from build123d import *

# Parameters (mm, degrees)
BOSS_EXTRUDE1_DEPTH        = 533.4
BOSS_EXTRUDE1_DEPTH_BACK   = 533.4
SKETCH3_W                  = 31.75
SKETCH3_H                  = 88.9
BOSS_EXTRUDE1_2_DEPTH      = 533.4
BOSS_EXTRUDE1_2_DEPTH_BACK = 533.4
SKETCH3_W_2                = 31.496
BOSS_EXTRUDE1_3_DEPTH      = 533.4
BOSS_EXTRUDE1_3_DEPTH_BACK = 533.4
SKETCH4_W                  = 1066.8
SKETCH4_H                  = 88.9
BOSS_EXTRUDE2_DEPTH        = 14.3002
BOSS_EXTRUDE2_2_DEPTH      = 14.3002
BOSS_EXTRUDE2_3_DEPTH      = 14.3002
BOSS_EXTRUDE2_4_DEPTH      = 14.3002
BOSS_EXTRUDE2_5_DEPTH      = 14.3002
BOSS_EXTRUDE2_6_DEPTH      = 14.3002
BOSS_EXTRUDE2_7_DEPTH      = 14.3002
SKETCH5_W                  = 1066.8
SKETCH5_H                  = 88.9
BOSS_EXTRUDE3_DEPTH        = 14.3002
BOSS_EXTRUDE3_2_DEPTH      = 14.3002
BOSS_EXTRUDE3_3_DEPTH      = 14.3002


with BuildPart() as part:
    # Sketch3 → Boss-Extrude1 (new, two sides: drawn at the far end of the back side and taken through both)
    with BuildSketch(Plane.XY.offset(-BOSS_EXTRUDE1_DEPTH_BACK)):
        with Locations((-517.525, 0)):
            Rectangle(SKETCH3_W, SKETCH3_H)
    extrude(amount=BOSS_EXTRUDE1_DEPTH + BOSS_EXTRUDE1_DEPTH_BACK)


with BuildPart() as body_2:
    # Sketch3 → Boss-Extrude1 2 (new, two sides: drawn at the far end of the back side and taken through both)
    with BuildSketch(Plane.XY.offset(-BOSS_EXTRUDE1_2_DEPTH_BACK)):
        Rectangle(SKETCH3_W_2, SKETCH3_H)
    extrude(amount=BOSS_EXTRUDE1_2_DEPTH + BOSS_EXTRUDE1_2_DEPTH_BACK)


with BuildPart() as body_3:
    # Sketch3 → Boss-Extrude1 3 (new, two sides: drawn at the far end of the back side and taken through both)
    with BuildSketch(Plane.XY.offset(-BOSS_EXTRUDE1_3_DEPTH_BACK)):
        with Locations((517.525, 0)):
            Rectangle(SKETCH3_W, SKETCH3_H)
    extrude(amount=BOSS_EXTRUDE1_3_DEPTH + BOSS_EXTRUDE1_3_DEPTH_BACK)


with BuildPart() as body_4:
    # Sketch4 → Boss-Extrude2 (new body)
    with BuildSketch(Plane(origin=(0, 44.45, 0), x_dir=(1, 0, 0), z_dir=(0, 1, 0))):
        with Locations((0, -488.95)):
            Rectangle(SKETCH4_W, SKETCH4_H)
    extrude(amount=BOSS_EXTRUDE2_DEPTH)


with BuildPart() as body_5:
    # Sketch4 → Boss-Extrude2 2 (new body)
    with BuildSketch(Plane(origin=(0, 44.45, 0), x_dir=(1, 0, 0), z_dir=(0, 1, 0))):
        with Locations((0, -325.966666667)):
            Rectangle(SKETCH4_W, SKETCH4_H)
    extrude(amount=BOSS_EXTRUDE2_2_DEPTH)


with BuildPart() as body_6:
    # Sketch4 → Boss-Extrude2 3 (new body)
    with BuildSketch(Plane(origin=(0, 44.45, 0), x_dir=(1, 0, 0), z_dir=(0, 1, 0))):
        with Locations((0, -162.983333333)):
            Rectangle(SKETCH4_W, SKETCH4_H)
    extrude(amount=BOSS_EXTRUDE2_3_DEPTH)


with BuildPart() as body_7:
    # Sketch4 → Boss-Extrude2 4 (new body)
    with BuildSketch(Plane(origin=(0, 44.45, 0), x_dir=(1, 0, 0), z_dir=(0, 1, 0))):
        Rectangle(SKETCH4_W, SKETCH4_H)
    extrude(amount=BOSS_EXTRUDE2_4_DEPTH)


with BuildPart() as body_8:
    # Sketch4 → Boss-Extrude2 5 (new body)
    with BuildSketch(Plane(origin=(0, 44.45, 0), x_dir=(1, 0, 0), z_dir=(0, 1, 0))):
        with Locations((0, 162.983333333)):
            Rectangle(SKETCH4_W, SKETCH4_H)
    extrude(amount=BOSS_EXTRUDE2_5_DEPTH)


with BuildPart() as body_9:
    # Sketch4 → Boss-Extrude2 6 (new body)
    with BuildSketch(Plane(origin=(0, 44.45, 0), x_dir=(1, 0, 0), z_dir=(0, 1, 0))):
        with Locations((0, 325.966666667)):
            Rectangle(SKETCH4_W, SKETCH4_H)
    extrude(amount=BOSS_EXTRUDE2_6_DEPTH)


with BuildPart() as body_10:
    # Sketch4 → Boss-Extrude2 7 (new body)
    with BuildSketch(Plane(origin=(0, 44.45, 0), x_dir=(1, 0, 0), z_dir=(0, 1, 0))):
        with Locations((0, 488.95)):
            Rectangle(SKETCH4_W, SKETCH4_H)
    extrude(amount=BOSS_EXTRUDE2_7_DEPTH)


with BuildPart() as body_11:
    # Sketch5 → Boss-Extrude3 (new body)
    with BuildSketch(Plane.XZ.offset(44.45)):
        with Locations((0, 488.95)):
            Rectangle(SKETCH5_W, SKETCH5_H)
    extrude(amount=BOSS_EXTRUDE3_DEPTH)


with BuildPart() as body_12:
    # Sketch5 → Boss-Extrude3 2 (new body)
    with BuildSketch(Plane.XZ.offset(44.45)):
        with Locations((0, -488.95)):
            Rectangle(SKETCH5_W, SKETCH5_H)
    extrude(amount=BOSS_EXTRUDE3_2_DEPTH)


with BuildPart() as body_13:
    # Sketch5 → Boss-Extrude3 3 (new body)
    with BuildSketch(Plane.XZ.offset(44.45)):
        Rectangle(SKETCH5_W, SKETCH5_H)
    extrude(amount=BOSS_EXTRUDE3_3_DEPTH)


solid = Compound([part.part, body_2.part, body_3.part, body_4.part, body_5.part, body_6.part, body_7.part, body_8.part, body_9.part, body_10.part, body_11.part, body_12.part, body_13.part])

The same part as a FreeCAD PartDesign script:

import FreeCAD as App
import Part
import Sketcher

V = App.Vector
Q = App.Units.Quantity


def add_polygon(sketch, points):
    """Adds a closed chain of lines whose ends are joined by coincident constraints."""
    first, n = sketch.GeometryCount, len(points)
    for a, b in zip(points, points[1:] + points[:1]):
        sketch.addGeometry(Part.LineSegment(App.Vector(*a, 0), App.Vector(*b, 0)), False)
    for i in range(n):
        sketch.addConstraint(Sketcher.Constraint("Coincident", first + i, 2, first + (i + 1) % n, 1))

doc = App.newDocument("Part")
body = doc.addObject("PartDesign::Body", "Body")

sketch1 = body.newObject("Sketcher::SketchObject", "Sketch")
sketch1.AttachmentSupport = (doc.getObject("XY_Plane"), [""])
sketch1.MapMode = "FlatFace"
add_polygon(sketch1, [(-533, 44), (-533, -44), (-502, -44), (-502, 44)])
sketch1.addConstraint([
    Sketcher.Constraint("Vertical", 0),
    Sketcher.Constraint("Horizontal", 1),
    Sketcher.Constraint("Vertical", 2),
    Sketcher.Constraint("Horizontal", 3),
    Sketcher.Constraint("DistanceY", 0, 2, 0, 1, Q("3.5 in")),
    Sketcher.Constraint("DistanceX", 0, 2, -1, 1, Q("21 in")),
    Sketcher.Constraint("DistanceX", 1, 1, 1, 2, Q("1.25 in")),
    Sketcher.Constraint("DistanceY", 0, 2, -1, 1, Q("1.75 in")),
])
pad1 = body.newObject("PartDesign::Pad", "Pad")
pad1.Profile = sketch1
pad1.Type = "TwoLengths"
pad1.Length = Q("21 in")
pad1.Length2 = Q("21 in")
body2 = doc.addObject("PartDesign::Body", "Body001")

sketch2 = body2.newObject("Sketcher::SketchObject", "Sketch001")
sketch2.AttachmentSupport = (doc.getObject("XY_Plane001"), [""])
sketch2.MapMode = "FlatFace"
add_polygon(sketch2, [(-16, 44), (-16, -44), (16, -44), (16, 44)])
sketch2.addConstraint([
    Sketcher.Constraint("Vertical", 0),
    Sketcher.Constraint("Horizontal", 1),
    Sketcher.Constraint("Vertical", 2),
    Sketcher.Constraint("Horizontal", 3),
    Sketcher.Constraint("Symmetric", 0, 2, 2, 2, -1, 1),
    Sketcher.Constraint("DistanceY", 0, 2, 0, 1, Q("3.5 in")),
    Sketcher.Constraint("DistanceX", 1, 1, 1, 2, Q("1.24 in")),
])
pad2 = body2.newObject("PartDesign::Pad", "Pad001")
pad2.Profile = sketch2
pad2.Type = "TwoLengths"
pad2.Length = Q("21 in")
pad2.Length2 = Q("21 in")
body3 = doc.addObject("PartDesign::Body", "Body002")

sketch3 = body3.newObject("Sketcher::SketchObject", "Sketch002")
sketch3.AttachmentSupport = (doc.getObject("XY_Plane002"), [""])
sketch3.MapMode = "FlatFace"
add_polygon(sketch3, [(502, 44), (502, -44), (533, -44), (533, 44)])
sketch3.addConstraint([
    Sketcher.Constraint("Vertical", 0),
    Sketcher.Constraint("Horizontal", 1),
    Sketcher.Constraint("Vertical", 2),
    Sketcher.Constraint("Horizontal", 3),
    Sketcher.Constraint("DistanceY", 0, 2, 0, 1, Q("3.5 in")),
    Sketcher.Constraint("DistanceX", -1, 1, 1, 2, Q("21 in")),
    Sketcher.Constraint("DistanceX", 1, 1, 1, 2, Q("1.25 in")),
    Sketcher.Constraint("DistanceY", 0, 2, -1, 1, Q("1.75 in")),
])
pad3 = body3.newObject("PartDesign::Pad", "Pad002")
pad3.Profile = sketch3
pad3.Type = "TwoLengths"
pad3.Length = Q("21 in")
pad3.Length2 = Q("21 in")
body4 = doc.addObject("PartDesign::Body", "Body003")

sketch4 = body4.newObject("Sketcher::SketchObject", "Sketch003")
sketch4.AttachmentSupport = (doc.getObject("XZ_Plane003"), [""])
sketch4.MapMode = "FlatFace"
sketch4.AttachmentOffset = App.Placement(V(0, 0, -1.75 * 25.4), App.Rotation())
add_polygon(sketch4, [(-533, 444), (-533, 533), (533, 533), (533, 444)])
sketch4.addConstraint([
    Sketcher.Constraint("Vertical", 0),
    Sketcher.Constraint("Horizontal", 1),
    Sketcher.Constraint("Vertical", 2),
    Sketcher.Constraint("Horizontal", 3),
    Sketcher.Constraint("DistanceX", 1, 1, 1, 2, Q("42 in")),
    Sketcher.Constraint("DistanceY", 0, 1, 0, 2, Q("3.5 in")),
    Sketcher.Constraint("DistanceX", 0, 2, -1, 1, Q("21 in")),
    Sketcher.Constraint("DistanceY", -1, 1, 0, 2, Q("21 in")),
])
pad4 = body4.newObject("PartDesign::Pad", "Pad003")
pad4.Profile = sketch4
pad4.Length = Q("0.563 in")
pad4.Reversed = True
body5 = doc.addObject("PartDesign::Body", "Body004")

sketch5 = body5.newObject("Sketcher::SketchObject", "Sketch004")
sketch5.AttachmentSupport = (doc.getObject("XZ_Plane004"), [""])
sketch5.MapMode = "FlatFace"
sketch5.AttachmentOffset = App.Placement(V(0, 0, -1.75 * 25.4), App.Rotation())
add_polygon(sketch5, [(-533, 282), (-533, 370), (533, 370), (533, 282)])
sketch5.addConstraint([
    Sketcher.Constraint("Vertical", 0),
    Sketcher.Constraint("Horizontal", 1),
    Sketcher.Constraint("Vertical", 2),
    Sketcher.Constraint("Horizontal", 3),
    Sketcher.Constraint("DistanceX", 1, 1, 1, 2, Q("42 in")),
    Sketcher.Constraint("DistanceY", 0, 1, 0, 2, Q("3.5 in")),
    Sketcher.Constraint("DistanceX", 0, 2, -1, 1, Q("21 in")),
    Sketcher.Constraint("DistanceY", -1, 1, 0, 2, 370.416667),
])
pad5 = body5.newObject("PartDesign::Pad", "Pad004")
pad5.Profile = sketch5
pad5.Length = Q("0.563 in")
pad5.Reversed = True
body6 = doc.addObject("PartDesign::Body", "Body005")

sketch6 = body6.newObject("Sketcher::SketchObject", "Sketch005")
sketch6.AttachmentSupport = (doc.getObject("XZ_Plane005"), [""])
sketch6.MapMode = "FlatFace"
sketch6.AttachmentOffset = App.Placement(V(0, 0, -1.75 * 25.4), App.Rotation())
add_polygon(sketch6, [(-533, 119), (-533, 207), (533, 207), (533, 119)])
sketch6.addConstraint([
    Sketcher.Constraint("Vertical", 0),
    Sketcher.Constraint("Horizontal", 1),
    Sketcher.Constraint("Vertical", 2),
    Sketcher.Constraint("Horizontal", 3),
    Sketcher.Constraint("DistanceX", 1, 1, 1, 2, Q("42 in")),
    Sketcher.Constraint("DistanceY", 0, 1, 0, 2, Q("3.5 in")),
    Sketcher.Constraint("DistanceX", 0, 2, -1, 1, Q("21 in")),
    Sketcher.Constraint("DistanceY", -1, 1, 0, 2, 207.433333),
])
pad6 = body6.newObject("PartDesign::Pad", "Pad005")
pad6.Profile = sketch6
pad6.Length = Q("0.563 in")
pad6.Reversed = True
body7 = doc.addObject("PartDesign::Body", "Body006")

sketch7 = body7.newObject("Sketcher::SketchObject", "Sketch006")
sketch7.AttachmentSupport = (doc.getObject("XZ_Plane006"), [""])
sketch7.MapMode = "FlatFace"
sketch7.AttachmentOffset = App.Placement(V(0, 0, -1.75 * 25.4), App.Rotation())
add_polygon(sketch7, [(-533, -44), (-533, 44), (533, 44), (533, -44)])
sketch7.addConstraint([
    Sketcher.Constraint("Vertical", 0),
    Sketcher.Constraint("Horizontal", 1),
    Sketcher.Constraint("Vertical", 2),
    Sketcher.Constraint("Horizontal", 3),
    Sketcher.Constraint("Symmetric", 0, 2, 2, 2, -1, 1),
    Sketcher.Constraint("DistanceX", 1, 1, 1, 2, Q("42 in")),
    Sketcher.Constraint("DistanceY", 0, 1, 0, 2, Q("3.5 in")),
])
pad7 = body7.newObject("PartDesign::Pad", "Pad006")
pad7.Profile = sketch7
pad7.Length = Q("0.563 in")
pad7.Reversed = True
body8 = doc.addObject("PartDesign::Body", "Body007")

sketch8 = body8.newObject("Sketcher::SketchObject", "Sketch007")
sketch8.AttachmentSupport = (doc.getObject("XZ_Plane007"), [""])
sketch8.MapMode = "FlatFace"
sketch8.AttachmentOffset = App.Placement(V(0, 0, -1.75 * 25.4), App.Rotation())
add_polygon(sketch8, [(-533, -207), (-533, -119), (533, -119), (533, -207)])
sketch8.addConstraint([
    Sketcher.Constraint("Vertical", 0),
    Sketcher.Constraint("Horizontal", 1),
    Sketcher.Constraint("Vertical", 2),
    Sketcher.Constraint("Horizontal", 3),
    Sketcher.Constraint("DistanceX", 1, 1, 1, 2, Q("42 in")),
    Sketcher.Constraint("DistanceY", 0, 1, 0, 2, Q("3.5 in")),
    Sketcher.Constraint("DistanceX", 0, 2, -1, 1, Q("21 in")),
    Sketcher.Constraint("DistanceY", 0, 2, -1, 1, 118.533333),
])
pad8 = body8.newObject("PartDesign::Pad", "Pad007")
pad8.Profile = sketch8
pad8.Length = Q("0.563 in")
pad8.Reversed = True
body9 = doc.addObject("PartDesign::Body", "Body008")

sketch9 = body9.newObject("Sketcher::SketchObject", "Sketch008")
sketch9.AttachmentSupport = (doc.getObject("XZ_Plane008"), [""])
sketch9.MapMode = "FlatFace"
sketch9.AttachmentOffset = App.Placement(V(0, 0, -1.75 * 25.4), App.Rotation())
add_polygon(sketch9, [(-533, -370), (-533, -282), (533, -282), (533, -370)])
sketch9.addConstraint([
    Sketcher.Constraint("Vertical", 0),
    Sketcher.Constraint("Horizontal", 1),
    Sketcher.Constraint("Vertical", 2),
    Sketcher.Constraint("Horizontal", 3),
    Sketcher.Constraint("DistanceX", 1, 1, 1, 2, Q("42 in")),
    Sketcher.Constraint("DistanceY", 0, 1, 0, 2, Q("3.5 in")),
    Sketcher.Constraint("DistanceX", 0, 2, -1, 1, Q("21 in")),
    Sketcher.Constraint("DistanceY", 0, 2, -1, 1, 281.516667),
])
pad9 = body9.newObject("PartDesign::Pad", "Pad008")
pad9.Profile = sketch9
pad9.Length = Q("0.563 in")
pad9.Reversed = True
body10 = doc.addObject("PartDesign::Body", "Body009")

sketch10 = body10.newObject("Sketcher::SketchObject", "Sketch009")
sketch10.AttachmentSupport = (doc.getObject("XZ_Plane009"), [""])
sketch10.MapMode = "FlatFace"
sketch10.AttachmentOffset = App.Placement(V(0, 0, -1.75 * 25.4), App.Rotation())
add_polygon(sketch10, [(-533, -533), (-533, -444), (533, -444), (533, -533)])
sketch10.addConstraint([
    Sketcher.Constraint("Vertical", 0),
    Sketcher.Constraint("Horizontal", 1),
    Sketcher.Constraint("Vertical", 2),
    Sketcher.Constraint("Horizontal", 3),
    Sketcher.Constraint("DistanceX", 1, 1, 1, 2, Q("42 in")),
    Sketcher.Constraint("DistanceY", 0, 1, 0, 2, Q("3.5 in")),
    Sketcher.Constraint("DistanceX", 0, 2, -1, 1, Q("21 in")),
    Sketcher.Constraint("DistanceY", 2, 2, -1, 1, Q("21 in")),
])
pad10 = body10.newObject("PartDesign::Pad", "Pad009")
pad10.Profile = sketch10
pad10.Length = Q("0.563 in")
pad10.Reversed = True
body11 = doc.addObject("PartDesign::Body", "Body010")

sketch11 = body11.newObject("Sketcher::SketchObject", "Sketch010")
sketch11.AttachmentSupport = (doc.getObject("XZ_Plane010"), [""])
sketch11.MapMode = "FlatFace"
sketch11.AttachmentOffset = App.Placement(V(0, 0, 1.75 * 25.4), App.Rotation())
add_polygon(sketch11, [(-533, 533), (-533, 444), (533, 444), (533, 533)])
sketch11.addConstraint([
    Sketcher.Constraint("Vertical", 0),
    Sketcher.Constraint("Horizontal", 1),
    Sketcher.Constraint("Vertical", 2),
    Sketcher.Constraint("Horizontal", 3),
    Sketcher.Constraint("DistanceX", 1, 1, 1, 2, Q("42 in")),
    Sketcher.Constraint("DistanceY", 0, 2, 0, 1, Q("3.5 in")),
    Sketcher.Constraint("DistanceX", 0, 2, -1, 1, Q("21 in")),
    Sketcher.Constraint("DistanceY", -1, 1, 2, 2, Q("21 in")),
])
pad11 = body11.newObject("PartDesign::Pad", "Pad010")
pad11.Profile = sketch11
pad11.Length = Q("0.563 in")
body12 = doc.addObject("PartDesign::Body", "Body011")

sketch12 = body12.newObject("Sketcher::SketchObject", "Sketch011")
sketch12.AttachmentSupport = (doc.getObject("XZ_Plane011"), [""])
sketch12.MapMode = "FlatFace"
sketch12.AttachmentOffset = App.Placement(V(0, 0, 1.75 * 25.4), App.Rotation())
add_polygon(sketch12, [(-533, -444), (-533, -533), (533, -533), (533, -444)])
sketch12.addConstraint([
    Sketcher.Constraint("Vertical", 0),
    Sketcher.Constraint("Horizontal", 1),
    Sketcher.Constraint("Vertical", 2),
    Sketcher.Constraint("Horizontal", 3),
    Sketcher.Constraint("DistanceX", 1, 1, 1, 2, Q("42 in")),
    Sketcher.Constraint("DistanceY", 0, 2, 0, 1, Q("3.5 in")),
    Sketcher.Constraint("DistanceX", 0, 2, -1, 1, Q("21 in")),
    Sketcher.Constraint("DistanceY", 0, 2, -1, 1, Q("21 in")),
])
pad12 = body12.newObject("PartDesign::Pad", "Pad011")
pad12.Profile = sketch12
pad12.Length = Q("0.563 in")
body13 = doc.addObject("PartDesign::Body", "Body012")

sketch13 = body13.newObject("Sketcher::SketchObject", "Sketch012")
sketch13.AttachmentSupport = (doc.getObject("XZ_Plane012"), [""])
sketch13.MapMode = "FlatFace"
sketch13.AttachmentOffset = App.Placement(V(0, 0, 1.75 * 25.4), App.Rotation())
add_polygon(sketch13, [(-533, 44), (-533, -44), (533, -44), (533, 44)])
sketch13.addConstraint([
    Sketcher.Constraint("Vertical", 0),
    Sketcher.Constraint("Horizontal", 1),
    Sketcher.Constraint("Vertical", 2),
    Sketcher.Constraint("Horizontal", 3),
    Sketcher.Constraint("Symmetric", 0, 2, 2, 2, -1, 1),
    Sketcher.Constraint("DistanceX", 1, 1, 1, 2, Q("42 in")),
    Sketcher.Constraint("DistanceY", 0, 2, 0, 1, Q("3.5 in")),
])
pad13 = body13.newObject("PartDesign::Pad", "Pad012")
pad13.Profile = sketch13
pad13.Length = Q("0.563 in")

doc.recompute()
